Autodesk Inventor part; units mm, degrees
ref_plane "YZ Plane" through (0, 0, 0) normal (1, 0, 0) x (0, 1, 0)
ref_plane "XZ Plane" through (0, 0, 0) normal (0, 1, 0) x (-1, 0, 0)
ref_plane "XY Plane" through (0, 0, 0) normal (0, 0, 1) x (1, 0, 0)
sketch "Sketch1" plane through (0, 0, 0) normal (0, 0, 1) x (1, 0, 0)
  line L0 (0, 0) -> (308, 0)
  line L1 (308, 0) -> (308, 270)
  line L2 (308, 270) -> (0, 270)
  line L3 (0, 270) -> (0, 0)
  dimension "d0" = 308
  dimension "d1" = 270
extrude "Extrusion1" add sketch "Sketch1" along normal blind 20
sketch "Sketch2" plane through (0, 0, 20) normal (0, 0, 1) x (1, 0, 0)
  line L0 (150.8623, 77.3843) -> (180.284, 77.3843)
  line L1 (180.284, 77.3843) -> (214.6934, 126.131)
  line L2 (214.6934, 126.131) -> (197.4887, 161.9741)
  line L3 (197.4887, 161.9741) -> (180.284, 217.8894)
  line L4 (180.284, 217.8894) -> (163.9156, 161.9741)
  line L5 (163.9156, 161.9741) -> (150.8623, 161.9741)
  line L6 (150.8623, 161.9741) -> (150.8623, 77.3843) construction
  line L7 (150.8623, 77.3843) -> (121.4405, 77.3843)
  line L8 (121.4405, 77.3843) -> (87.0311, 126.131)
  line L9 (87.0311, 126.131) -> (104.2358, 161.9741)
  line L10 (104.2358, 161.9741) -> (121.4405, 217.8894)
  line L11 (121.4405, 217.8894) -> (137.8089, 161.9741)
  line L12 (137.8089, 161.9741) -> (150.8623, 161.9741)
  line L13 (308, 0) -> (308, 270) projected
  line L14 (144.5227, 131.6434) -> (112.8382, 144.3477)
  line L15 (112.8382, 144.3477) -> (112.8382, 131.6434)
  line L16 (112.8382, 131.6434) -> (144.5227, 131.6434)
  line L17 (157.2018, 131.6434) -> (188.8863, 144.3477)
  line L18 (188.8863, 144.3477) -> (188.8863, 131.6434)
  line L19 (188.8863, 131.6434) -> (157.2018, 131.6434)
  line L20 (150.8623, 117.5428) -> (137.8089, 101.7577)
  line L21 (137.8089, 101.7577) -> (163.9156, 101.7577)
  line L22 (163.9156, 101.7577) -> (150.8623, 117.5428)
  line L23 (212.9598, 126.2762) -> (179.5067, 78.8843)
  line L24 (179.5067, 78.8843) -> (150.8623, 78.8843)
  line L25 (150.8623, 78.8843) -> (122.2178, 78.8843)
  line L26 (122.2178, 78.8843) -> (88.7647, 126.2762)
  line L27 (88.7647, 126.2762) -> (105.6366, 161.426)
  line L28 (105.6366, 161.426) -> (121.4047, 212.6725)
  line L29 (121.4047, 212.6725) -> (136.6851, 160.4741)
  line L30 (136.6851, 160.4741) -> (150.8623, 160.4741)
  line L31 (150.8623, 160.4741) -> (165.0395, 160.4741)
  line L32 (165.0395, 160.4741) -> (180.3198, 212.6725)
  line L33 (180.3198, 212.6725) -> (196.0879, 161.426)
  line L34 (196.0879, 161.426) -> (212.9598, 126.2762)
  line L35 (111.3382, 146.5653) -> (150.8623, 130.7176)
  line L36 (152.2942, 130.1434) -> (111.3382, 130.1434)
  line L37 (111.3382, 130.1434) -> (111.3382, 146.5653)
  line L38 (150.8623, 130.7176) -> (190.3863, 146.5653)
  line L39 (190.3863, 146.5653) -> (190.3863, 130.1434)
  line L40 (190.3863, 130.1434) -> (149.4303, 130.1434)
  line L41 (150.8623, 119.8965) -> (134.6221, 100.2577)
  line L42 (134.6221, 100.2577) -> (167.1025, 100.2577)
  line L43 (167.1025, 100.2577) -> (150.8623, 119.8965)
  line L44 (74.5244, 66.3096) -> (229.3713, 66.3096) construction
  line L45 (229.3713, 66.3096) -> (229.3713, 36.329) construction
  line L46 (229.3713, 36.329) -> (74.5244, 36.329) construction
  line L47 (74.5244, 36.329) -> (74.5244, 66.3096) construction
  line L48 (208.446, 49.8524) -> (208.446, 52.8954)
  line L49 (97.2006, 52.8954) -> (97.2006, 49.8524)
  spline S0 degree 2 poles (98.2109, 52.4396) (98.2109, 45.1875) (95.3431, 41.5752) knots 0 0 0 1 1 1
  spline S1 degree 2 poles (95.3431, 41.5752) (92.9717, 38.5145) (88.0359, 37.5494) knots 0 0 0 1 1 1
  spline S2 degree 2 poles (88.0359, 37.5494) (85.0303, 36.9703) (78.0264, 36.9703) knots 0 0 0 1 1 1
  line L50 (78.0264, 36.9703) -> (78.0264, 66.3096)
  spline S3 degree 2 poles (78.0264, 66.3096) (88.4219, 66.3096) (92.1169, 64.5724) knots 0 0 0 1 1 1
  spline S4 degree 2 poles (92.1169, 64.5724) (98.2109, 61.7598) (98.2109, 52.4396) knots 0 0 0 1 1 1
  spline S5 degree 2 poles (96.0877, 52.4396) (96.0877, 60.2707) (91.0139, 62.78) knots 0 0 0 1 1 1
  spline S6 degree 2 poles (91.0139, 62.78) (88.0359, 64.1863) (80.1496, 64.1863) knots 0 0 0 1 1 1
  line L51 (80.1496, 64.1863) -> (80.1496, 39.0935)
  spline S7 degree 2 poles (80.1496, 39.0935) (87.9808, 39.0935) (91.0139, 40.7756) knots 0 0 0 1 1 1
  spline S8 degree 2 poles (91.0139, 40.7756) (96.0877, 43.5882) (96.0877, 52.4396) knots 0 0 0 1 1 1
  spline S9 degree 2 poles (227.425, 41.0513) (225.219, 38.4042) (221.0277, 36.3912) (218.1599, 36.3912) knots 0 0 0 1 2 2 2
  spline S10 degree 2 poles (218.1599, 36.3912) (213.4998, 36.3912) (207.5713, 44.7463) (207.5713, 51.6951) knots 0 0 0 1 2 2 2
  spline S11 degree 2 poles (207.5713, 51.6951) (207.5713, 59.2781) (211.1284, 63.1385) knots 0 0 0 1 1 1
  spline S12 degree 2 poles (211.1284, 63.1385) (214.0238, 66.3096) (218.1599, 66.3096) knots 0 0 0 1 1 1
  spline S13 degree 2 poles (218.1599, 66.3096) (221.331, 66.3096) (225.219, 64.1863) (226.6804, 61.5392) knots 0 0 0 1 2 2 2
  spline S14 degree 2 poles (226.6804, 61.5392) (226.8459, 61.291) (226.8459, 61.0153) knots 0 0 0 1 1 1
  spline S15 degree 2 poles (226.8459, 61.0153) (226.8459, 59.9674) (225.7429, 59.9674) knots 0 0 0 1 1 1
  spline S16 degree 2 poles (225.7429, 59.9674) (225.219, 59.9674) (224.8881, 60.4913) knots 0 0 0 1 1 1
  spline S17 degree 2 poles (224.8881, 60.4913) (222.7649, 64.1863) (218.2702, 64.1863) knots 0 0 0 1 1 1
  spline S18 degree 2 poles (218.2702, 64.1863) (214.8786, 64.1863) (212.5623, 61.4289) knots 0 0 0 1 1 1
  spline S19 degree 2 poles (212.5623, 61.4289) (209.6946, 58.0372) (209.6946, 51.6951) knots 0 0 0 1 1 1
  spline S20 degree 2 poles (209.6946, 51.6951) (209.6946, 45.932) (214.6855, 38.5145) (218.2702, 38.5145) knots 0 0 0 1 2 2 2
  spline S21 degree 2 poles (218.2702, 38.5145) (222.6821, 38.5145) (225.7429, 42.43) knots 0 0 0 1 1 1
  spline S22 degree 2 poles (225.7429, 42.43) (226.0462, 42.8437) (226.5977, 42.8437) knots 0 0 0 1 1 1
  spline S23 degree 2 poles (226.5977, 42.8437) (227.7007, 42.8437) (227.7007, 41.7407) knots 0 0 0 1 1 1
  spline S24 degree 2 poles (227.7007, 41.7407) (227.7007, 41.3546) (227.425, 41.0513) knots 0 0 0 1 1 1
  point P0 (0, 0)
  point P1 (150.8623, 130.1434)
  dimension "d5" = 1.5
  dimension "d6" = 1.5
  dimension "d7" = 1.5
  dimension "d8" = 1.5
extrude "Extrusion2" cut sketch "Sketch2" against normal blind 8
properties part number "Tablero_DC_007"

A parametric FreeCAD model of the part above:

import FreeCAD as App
import Part
import Sketcher
from FreeCAD import Vector


def add_polygon(sketch, points):
    """Adds a closed chain of lines whose ends are joined by coincident constraints."""
    first, n = sketch.GeometryCount, len(points)
    for a, b in zip(points, points[1:] + points[:1]):
        sketch.addGeometry(Part.LineSegment(App.Vector(*a, 0), App.Vector(*b, 0)), False)
    for i in range(n):
        sketch.addConstraint(Sketcher.Constraint("Coincident", first + i, 2, first + (i + 1) % n, 1))

doc = App.newDocument("Part")
params = doc.addObject("Spreadsheet::Sheet", "Params")
for row, (alias, value) in enumerate([
    ("sketch1_width", "308 mm"),
    ("sketch1_height", "270 mm"),
    ("pad1_length", "20 mm"),
    ("pocket1_length", "8 mm"),
], start=1):
    params.set(f"A{row}", alias)
    params.set(f"B{row}", "=" + value)
    params.setAlias(f"B{row}", alias)

body = doc.addObject("PartDesign::Body", "Body")

sketch1 = doc.addObject("Sketcher::SketchObject", "Sketch")
body.addObject(sketch1)
sketch1.AttachmentSupport = (doc.XY_Plane, [""])
sketch1.MapMode = "FlatFace"
add_polygon(sketch1, [(0, 270), (0, 0), (308, 0), (308, 270)])
sketch1.addConstraint([
    Sketcher.Constraint("Vertical", 0),
    Sketcher.Constraint("Horizontal", 1),
    Sketcher.Constraint("Vertical", 2),
    Sketcher.Constraint("Horizontal", 3),
    Sketcher.Constraint("Coincident", 0, 2, -1, 1),
    Sketcher.Constraint("DistanceX", 1, 1, 1, 2, 308.0),
    Sketcher.Constraint("DistanceY", 0, 2, 0, 1, 270.0),
])
sketch1.setExpression("Constraints[9]", "Params.sketch1_width")
sketch1.setExpression("Constraints[10]", "Params.sketch1_height")
pad1 = doc.addObject("PartDesign::Pad", "Pad")
body.addObject(pad1)
pad1.Profile = sketch1
pad1.setExpression("Length", "Params.pad1_length")

sketch2 = doc.addObject("Sketcher::SketchObject", "Sketch001")
body.addObject(sketch2)
sketch2.AttachmentSupport = (doc.XY_Plane, [""])
sketch2.MapMode = "FlatFace"
sketch2.AttachmentOffset = App.Placement(Vector(0, 0, 20), App.Rotation())
add_polygon(sketch2, [(121.4405, 77.3843), (180.284, 77.3843), (214.6934, 126.131), (197.4887, 161.9741), (180.284, 217.8894), (163.9156, 161.9741), (137.8089, 161.9741), (121.4405, 217.8894), (104.2358, 161.9741), (87.0311, 126.131)])
add_polygon(sketch2, [(196.0879, 161.426), (212.9598, 126.2762), (179.5067, 78.8843), (122.2178, 78.8843), (88.7647, 126.2762), (105.6366, 161.426), (121.4047, 212.6725), (136.6851, 160.4741), (165.0395, 160.4741), (180.3198, 212.6725)])
add_polygon(sketch2, [(150.8623, 130.7176), (111.3382, 146.5653), (111.3382, 130.1434), (190.3863, 130.1434), (190.3863, 146.5653)])
add_polygon(sketch2, [(112.8382, 144.3477), (144.5227, 131.6434), (112.8382, 131.6434)])
add_polygon(sketch2, [(188.8863, 131.6434), (157.2018, 131.6434), (188.8863, 144.3477)])
add_polygon(sketch2, [(167.1025, 100.2577), (150.8623, 119.8965), (134.6221, 100.2577)])
add_polygon(sketch2, [(137.8089, 101.7577), (150.8623, 117.5428), (163.9156, 101.7577)])
sketch2.addGeometry(Part.BSplineCurve([Vector(98.2109, 52.4396, 0), Vector(98.2109, 45.1875, 0), Vector(95.3431, 41.5752, 0)], [3, 3], [0, 1], False, 2, [1, 1, 1], False), False)
sketch2.addGeometry(Part.BSplineCurve([Vector(92.1169, 64.5724, 0), Vector(98.2109, 61.7598, 0), Vector(98.2109, 52.4396, 0)], [3, 3], [0, 1], False, 2, [1, 1, 1], False), False)
sketch2.addGeometry(Part.BSplineCurve([Vector(78.0264, 66.3096, 0), Vector(88.4219, 66.3096, 0), Vector(92.1169, 64.5724, 0)], [3, 3], [0, 1], False, 2, [1, 1, 1], False), False)
sketch2.addGeometry(Part.LineSegment(Vector(78.0264, 66.3096, 0), Vector(78.0264, 36.9703, 0)), False)
sketch2.addGeometry(Part.BSplineCurve([Vector(88.0359, 37.5494, 0), Vector(85.0303, 36.9703, 0), Vector(78.0264, 36.9703, 0)], [3, 3], [0, 1], False, 2, [1, 1, 1], False), False)
sketch2.addGeometry(Part.BSplineCurve([Vector(95.3431, 41.5752, 0), Vector(92.9717, 38.5145, 0), Vector(88.0359, 37.5494, 0)], [3, 3], [0, 1], False, 2, [1, 1, 1], False), False)
sketch2.addGeometry(Part.BSplineCurve([Vector(96.0877, 52.4396, 0), Vector(96.0877, 60.2707, 0), Vector(91.0139, 62.78, 0)], [3, 3], [0, 1], False, 2, [1, 1, 1], False), False)
sketch2.addGeometry(Part.BSplineCurve([Vector(91.0139, 40.7756, 0), Vector(96.0877, 43.5882, 0), Vector(96.0877, 52.4396, 0)], [3, 3], [0, 1], False, 2, [1, 1, 1], False), False)
sketch2.addGeometry(Part.BSplineCurve([Vector(80.1496, 39.0935, 0), Vector(87.9808, 39.0935, 0), Vector(91.0139, 40.7756, 0)], [3, 3], [0, 1], False, 2, [1, 1, 1], False), False)
sketch2.addGeometry(Part.LineSegment(Vector(80.1496, 39.0935, 0), Vector(80.1496, 64.1863, 0)), False)
sketch2.addGeometry(Part.BSplineCurve([Vector(91.0139, 62.78, 0), Vector(88.0359, 64.1863, 0), Vector(80.1496, 64.1863, 0)], [3, 3], [0, 1], False, 2, [1, 1, 1], False), False)
sketch2.addGeometry(Part.BSplineCurve([Vector(227.425, 41.0513, 0), Vector(225.219, 38.4042, 0), Vector(221.0277, 36.3912, 0), Vector(218.1599, 36.3912, 0)], [3, 1, 3], [0, 1, 2], False, 2, [1, 1, 1, 1], False), False)
sketch2.addGeometry(Part.BSplineCurve([Vector(227.7007, 41.7407, 0), Vector(227.7007, 41.3546, 0), Vector(227.425, 41.0513, 0)], [3, 3], [0, 1], False, 2, [1, 1, 1], False), False)
sketch2.addGeometry(Part.BSplineCurve([Vector(226.5977, 42.8437, 0), Vector(227.7007, 42.8437, 0), Vector(227.7007, 41.7407, 0)], [3, 3], [0, 1], False, 2, [1, 1, 1], False), False)
sketch2.addGeometry(Part.BSplineCurve([Vector(225.7429, 42.43, 0), Vector(226.0462, 42.8437, 0), Vector(226.5977, 42.8437, 0)], [3, 3], [0, 1], False, 2, [1, 1, 1], False), False)
sketch2.addGeometry(Part.BSplineCurve([Vector(218.2702, 38.5145, 0), Vector(222.6821, 38.5145, 0), Vector(225.7429, 42.43, 0)], [3, 3], [0, 1], False, 2, [1, 1, 1], False), False)
sketch2.addGeometry(Part.BSplineCurve([Vector(209.6946, 51.6951, 0), Vector(209.6946, 45.932, 0), Vector(214.6855, 38.5145, 0), Vector(218.2702, 38.5145, 0)], [3, 1, 3], [0, 1, 2], False, 2, [1, 1, 1, 1], False), False)
sketch2.addGeometry(Part.BSplineCurve([Vector(212.5623, 61.4289, 0), Vector(209.6946, 58.0372, 0), Vector(209.6946, 51.6951, 0)], [3, 3], [0, 1], False, 2, [1, 1, 1], False), False)
sketch2.addGeometry(Part.BSplineCurve([Vector(218.2702, 64.1863, 0), Vector(214.8786, 64.1863, 0), Vector(212.5623, 61.4289, 0)], [3, 3], [0, 1], False, 2, [1, 1, 1], False), False)
sketch2.addGeometry(Part.BSplineCurve([Vector(224.8881, 60.4913, 0), Vector(222.7649, 64.1863, 0), Vector(218.2702, 64.1863, 0)], [3, 3], [0, 1], False, 2, [1, 1, 1], False), False)
sketch2.addGeometry(Part.BSplineCurve([Vector(225.7429, 59.9674, 0), Vector(225.219, 59.9674, 0), Vector(224.8881, 60.4913, 0)], [3, 3], [0, 1], False, 2, [1, 1, 1], False), False)
sketch2.addGeometry(Part.BSplineCurve([Vector(226.8459, 61.0153, 0), Vector(226.8459, 59.9674, 0), Vector(225.7429, 59.9674, 0)], [3, 3], [0, 1], False, 2, [1, 1, 1], False), False)
sketch2.addGeometry(Part.BSplineCurve([Vector(226.6804, 61.5392, 0), Vector(226.8459, 61.291, 0), Vector(226.8459, 61.0153, 0)], [3, 3], [0, 1], False, 2, [1, 1, 1], False), False)
sketch2.addGeometry(Part.BSplineCurve([Vector(218.1599, 66.3096, 0), Vector(221.331, 66.3096, 0), Vector(225.219, 64.1863, 0), Vector(226.6804, 61.5392, 0)], [3, 1, 3], [0, 1, 2], False, 2, [1, 1, 1, 1], False), False)
sketch2.addGeometry(Part.BSplineCurve([Vector(211.1284, 63.1385, 0), Vector(214.0238, 66.3096, 0), Vector(218.1599, 66.3096, 0)], [3, 3], [0, 1], False, 2, [1, 1, 1], False), False)
sketch2.addGeometry(Part.BSplineCurve([Vector(207.5713, 51.6951, 0), Vector(207.5713, 59.2781, 0), Vector(211.1284, 63.1385, 0)], [3, 3], [0, 1], False, 2, [1, 1, 1], False), False)
sketch2.addGeometry(Part.BSplineCurve([Vector(218.1599, 36.3912, 0), Vector(213.4998, 36.3912, 0), Vector(207.5713, 44.7463, 0), Vector(207.5713, 51.6951, 0)], [3, 1, 3], [0, 1, 2], False, 2, [1, 1, 1, 1], False), False)
sketch2.addConstraint([
    Sketcher.Constraint("Block", 37),
    Sketcher.Constraint("Block", 38),
    Sketcher.Constraint("Block", 39),
    Sketcher.Constraint("Block", 41),
    Sketcher.Constraint("Block", 42),
    Sketcher.Constraint("Block", 43),
    Sketcher.Constraint("Block", 44),
    Sketcher.Constraint("Block", 45),
    Sketcher.Constraint("Block", 47),
    Sketcher.Constraint("Block", 48),
    Sketcher.Constraint("Block", 49),
    Sketcher.Constraint("Block", 50),
    Sketcher.Constraint("Block", 51),
    Sketcher.Constraint("Block", 52),
    Sketcher.Constraint("Block", 53),
    Sketcher.Constraint("Block", 54),
    Sketcher.Constraint("Block", 55),
    Sketcher.Constraint("Block", 56),
    Sketcher.Constraint("Block", 57),
    Sketcher.Constraint("Block", 58),
    Sketcher.Constraint("Block", 59),
    Sketcher.Constraint("Block", 60),
    Sketcher.Constraint("Block", 61),
    Sketcher.Constraint("Block", 62),
    Sketcher.Constraint("Block", 63),
    Sketcher.Constraint("Coincident", 39, 1, 40, 1),
    Sketcher.Constraint("Coincident", 40, 2, 41, 2),
    Sketcher.Constraint("Coincident", 45, 1, 46, 1),
    Sketcher.Constraint("Coincident", 46, 2, 47, 2),
    Sketcher.Constraint("Horizontal", 0),
    Sketcher.Constraint("Horizontal", 5),
    Sketcher.Constraint("Horizontal", 12),
    Sketcher.Constraint("Horizontal", 17),
    Sketcher.Constraint("Vertical", 21),
    Sketcher.Constraint("Horizontal", 22),
    Sketcher.Constraint("Vertical", 23),
    Sketcher.Constraint("Horizontal", 26),
    Sketcher.Constraint("Vertical", 27),
    Sketcher.Constraint("Horizontal", 28),
    Sketcher.Constraint("Vertical", 30),
    Sketcher.Constraint("Horizontal", 33),
    Sketcher.Constraint("Horizontal", 36),
    Sketcher.Constraint("DistanceY", 0, 2, 11, 2, 1.5),
    Sketcher.Constraint("DistanceY", 16, 2, 5, 2, 1.5),
    Sketcher.Constraint("DistanceY", 16, 2, 7, 2, 1.5),
    Sketcher.Constraint("DistanceY", 17, 2, 2, 2, 1.5),
    Sketcher.Constraint("DistanceY", 21, 2, 25, 2, 1.5),
    Sketcher.Constraint("DistanceX", 21, 2, 26, 2, 1.5),
    Sketcher.Constraint("DistanceY", 22, 2, 28, 2, 1.5),
    Sketcher.Constraint("DistanceX", 29, 2, 23, 2, 1.5),
    Sketcher.Constraint("DistanceY", 33, 2, 35, 2, 1.5),
    Sketcher.Constraint("DistanceX", 12, 2, 12, 1, 57.289),
    Sketcher.Constraint("DistanceX", 22, 1, 22, 2, 79.048),
    Sketcher.Constraint("DistanceY", 21, 2, 21, 1, 16.422),
    Sketcher.Constraint("DistanceY", 23, 1, 23, 2, 16.422),
    Sketcher.Constraint("DistanceY", 32, 2, 24, 2, 30.46),
    Sketcher.Constraint("DistanceY", 46, 2, 13, 2, 62.09),
    Sketcher.Constraint("Distance", 16, 54.389),
    Sketcher.Constraint("Distance", 18, 54.389),
    Sketcher.Constraint("Distance", 20, 42.583),
    Sketcher.Constraint("Distance", 35, 20.483),
    Sketcher.Constraint("DistanceX", 0, 1, 0, 2, 58.8435),
    Sketcher.Constraint("DistanceX", 5, 2, 5, 1, 26.1067),
    Sketcher.Constraint("DistanceX", 17, 1, 17, 2, 28.3544),
    Sketcher.Constraint("DistanceX", 26, 2, 26, 1, 31.6845),
    Sketcher.Constraint("DistanceX", 28, 2, 28, 1, 31.6845),
    Sketcher.Constraint("DistanceX", 33, 1, 33, 2, 32.4804),
    Sketcher.Constraint("DistanceX", 36, 2, 36, 1, 26.1067),
    Sketcher.Constraint("DistanceY", 27, 1, 27, 2, 12.7043),
    Sketcher.Constraint("DistanceY", 30, 2, 30, 1, 12.7043),
    Sketcher.Constraint("DistanceX", -1, 1, 0, 2, 180.284),
    Sketcher.Constraint("DistanceY", -1, 1, 1, 2, 126.131),
    Sketcher.Constraint("DistanceY", -1, 1, 2, 2, 161.974),
    Sketcher.Constraint("DistanceX", -1, 1, 3, 2, 180.284),
    Sketcher.Constraint("DistanceX", -1, 1, 5, 2, 137.809),
    Sketcher.Constraint("DistanceX", -1, 1, 8, 2, 87.031),
    Sketcher.Constraint("DistanceY", -1, 1, 8, 2, 126.131),
    Sketcher.Constraint("DistanceY", -1, 1, 14, 2, 161.426),
    Sketcher.Constraint("DistanceX", -1, 1, 16, 2, 136.685),
    Sketcher.Constraint("DistanceX", -1, 1, 19, 2, 196.088),
    Sketcher.Constraint("DistanceY", -1, 1, 19, 2, 161.426),
    Sketcher.Constraint("DistanceX", -1, 1, 32, 2, 134.622),
    Sketcher.Constraint("DistanceX", -1, 1, 36, 2, 137.809),
    Sketcher.Constraint("DistanceY", 0, 2, 3, 2, 140.505),
    Sketcher.Constraint("DistanceX", 4, 2, 2, 2, 33.573),
    Sketcher.Constraint("DistanceX", 6, 2, 4, 2, 42.475),
    Sketcher.Constraint("DistanceX", 6, 2, 1, 2, 93.253),
    Sketcher.Constraint("DistanceX", 7, 2, 5, 2, 33.573),
    Sketcher.Constraint("DistanceX", 2, 2, 10, 2, 15.471),
    Sketcher.Constraint("DistanceY", 10, 2, 2, 2, 35.698),
    Sketcher.Constraint("DistanceY", 0, 2, 10, 2, 48.892),
    Sketcher.Constraint("DistanceX", 11, 2, 10, 2, 33.453),
    Sketcher.Constraint("DistanceX", 13, 2, 7, 2, 15.471),
    Sketcher.Constraint("DistanceX", 13, 2, 14, 2, 16.872),
    Sketcher.Constraint("DistanceY", 15, 2, 6, 2, 5.217),
    Sketcher.Constraint("DistanceX", 7, 2, 15, 2, 17.169),
    Sketcher.Constraint("DistanceY", 18, 2, 3, 2, 5.217),
    Sketcher.Constraint("DistanceX", 20, 2, 16, 2, 25.347),
    Sketcher.Constraint("DistanceY", 13, 2, 20, 2, 20.289),
    Sketcher.Constraint("DistanceX", 24, 2, 22, 2, 39.524),
    Sketcher.Constraint("DistanceY", 31, 2, 24, 2, 10.821),
    Sketcher.Constraint("DistanceX", 31, 2, 30, 2, 38.024),
    Sketcher.Constraint("DistanceY", 33, 2, 34, 2, 17.285),
])
pocket1 = doc.addObject("PartDesign::Pocket", "Pocket")
body.addObject(pocket1)
pocket1.Profile = sketch2
pocket1.setExpression("Length", "Params.pocket1_length")

doc.recompute()
